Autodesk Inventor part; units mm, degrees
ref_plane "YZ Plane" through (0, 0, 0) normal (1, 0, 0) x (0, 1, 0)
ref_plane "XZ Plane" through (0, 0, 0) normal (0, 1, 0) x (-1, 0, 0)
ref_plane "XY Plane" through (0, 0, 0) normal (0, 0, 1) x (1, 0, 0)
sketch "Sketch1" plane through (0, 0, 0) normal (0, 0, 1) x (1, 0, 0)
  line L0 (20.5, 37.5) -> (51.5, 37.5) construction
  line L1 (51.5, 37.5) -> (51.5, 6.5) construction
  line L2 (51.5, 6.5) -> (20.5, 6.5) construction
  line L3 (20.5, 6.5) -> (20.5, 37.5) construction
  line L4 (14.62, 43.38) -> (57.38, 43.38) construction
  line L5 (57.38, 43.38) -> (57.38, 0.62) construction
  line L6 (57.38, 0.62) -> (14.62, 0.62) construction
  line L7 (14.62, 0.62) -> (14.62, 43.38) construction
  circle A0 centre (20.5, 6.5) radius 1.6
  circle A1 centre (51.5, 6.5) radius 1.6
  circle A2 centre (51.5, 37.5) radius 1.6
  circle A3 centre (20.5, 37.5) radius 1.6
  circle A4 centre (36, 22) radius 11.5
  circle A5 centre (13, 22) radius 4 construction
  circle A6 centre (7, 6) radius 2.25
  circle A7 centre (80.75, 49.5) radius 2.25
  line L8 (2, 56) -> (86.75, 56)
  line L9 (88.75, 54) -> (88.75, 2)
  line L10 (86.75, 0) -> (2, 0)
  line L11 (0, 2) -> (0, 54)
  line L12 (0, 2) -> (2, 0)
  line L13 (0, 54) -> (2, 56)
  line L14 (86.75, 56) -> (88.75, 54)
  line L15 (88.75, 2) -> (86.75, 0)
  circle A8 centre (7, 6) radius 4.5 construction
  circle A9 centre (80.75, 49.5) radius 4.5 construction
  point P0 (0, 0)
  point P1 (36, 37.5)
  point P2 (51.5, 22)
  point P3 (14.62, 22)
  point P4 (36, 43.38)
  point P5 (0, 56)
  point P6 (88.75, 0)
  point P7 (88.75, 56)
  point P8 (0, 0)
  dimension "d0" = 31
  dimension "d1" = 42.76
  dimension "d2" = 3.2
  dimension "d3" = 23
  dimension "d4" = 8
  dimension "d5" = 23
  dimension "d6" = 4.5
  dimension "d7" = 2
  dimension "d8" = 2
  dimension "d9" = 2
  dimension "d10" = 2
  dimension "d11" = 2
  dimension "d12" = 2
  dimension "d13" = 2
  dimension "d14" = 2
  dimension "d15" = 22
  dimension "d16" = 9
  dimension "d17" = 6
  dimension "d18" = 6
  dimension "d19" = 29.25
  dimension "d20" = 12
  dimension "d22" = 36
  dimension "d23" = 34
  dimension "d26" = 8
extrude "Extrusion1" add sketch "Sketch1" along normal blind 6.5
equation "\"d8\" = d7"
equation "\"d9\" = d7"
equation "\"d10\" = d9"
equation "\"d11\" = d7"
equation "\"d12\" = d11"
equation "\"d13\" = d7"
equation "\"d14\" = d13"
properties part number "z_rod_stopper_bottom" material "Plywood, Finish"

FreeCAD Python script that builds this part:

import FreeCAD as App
import Part
import Sketcher

V = App.Vector


def add_polygon(sketch, points):
    """Adds a closed chain of lines whose ends are joined by coincident constraints."""
    first, n = sketch.GeometryCount, len(points)
    for a, b in zip(points, points[1:] + points[:1]):
        sketch.addGeometry(Part.LineSegment(App.Vector(*a, 0), App.Vector(*b, 0)), False)
    for i in range(n):
        sketch.addConstraint(Sketcher.Constraint("Coincident", first + i, 2, first + (i + 1) % n, 1))

doc = App.newDocument("Part")
params = doc.addObject("Spreadsheet::Sheet", "Params")
for row, (alias, value) in enumerate([
    ("sketch1_diameter", "23 mm"),
    ("sketch1_diameter2", "4.5 mm"),
    ("sketch1_diameter3", "3.2 mm"),
    ("sketch1_width", "84.75 mm"),
    ("pad1_length", "6.5 mm"),
], start=1):
    params.set(f"A{row}", alias)
    params.set(f"B{row}", "=" + value)
    params.setAlias(f"B{row}", alias)

body = doc.addObject("PartDesign::Body", "Body")

# Sketch on XY plane
sketch1 = body.newObject("Sketcher::SketchObject", "Sketch")
sketch1.AttachmentSupport = (doc.getObject("XY_Plane"), [""])
sketch1.MapMode = "FlatFace"
add_polygon(sketch1, [(86.75, 56), (2, 56), (0, 54), (0, 2), (2, 0), (86.75, 0), (88.75, 2), (88.75, 54)])  # lines 0-7
sketch1.addGeometry(Part.Circle(V(7, 6, 0), V(0, 0, 1), 2.25), False)  # 8
sketch1.addGeometry(Part.Circle(V(20.5, 6.5, 0), V(0, 0, 1), 1.6), False)  # 9
sketch1.addGeometry(Part.Circle(V(36, 22, 0), V(0, 0, 1), 11.5), False)  # 10
sketch1.addGeometry(Part.Circle(V(51.5, 6.5, 0), V(0, 0, 1), 1.6), False)  # 11
sketch1.addGeometry(Part.Circle(V(20.5, 37.5, 0), V(0, 0, 1), 1.6), False)  # 12
sketch1.addGeometry(Part.Circle(V(51.5, 37.5, 0), V(0, 0, 1), 1.6), False)  # 13
sketch1.addGeometry(Part.Circle(V(80.75, 49.5, 0), V(0, 0, 1), 2.25), False)  # 14
sketch1.addConstraint([
    Sketcher.Constraint("Horizontal", 0),
    Sketcher.Constraint("Vertical", 2),
    Sketcher.Constraint("Horizontal", 4),
    Sketcher.Constraint("Vertical", 6),
    Sketcher.Constraint("Equal", 9, 11),
    Sketcher.Constraint("Equal", 11, 12),
    Sketcher.Constraint("Equal", 12, 13),
    Sketcher.Constraint("Equal", 8, 14),
    Sketcher.Constraint("PointOnObject", 1, 2, -2),
    Sketcher.Constraint("PointOnObject", 3, 2, -1),
    Sketcher.Constraint("Perpendicular", 1, 3),
    Sketcher.Constraint("Perpendicular", 3, 5),
    Sketcher.Constraint("Perpendicular", 5, 7),
    Sketcher.Constraint("Horizontal", 9, 3, 11, 3),
    Sketcher.Constraint("Horizontal", 12, 3, 13, 3),
    Sketcher.Constraint("Horizontal", 2, 2, 5, 2),
    Sketcher.Constraint("Horizontal", 1, 2, 6, 2),
    Sketcher.Constraint("Vertical", 9, 3, 12, 3),
    Sketcher.Constraint("Vertical", 11, 3, 13, 3),
    Sketcher.Constraint("Vertical", 0, 2, 3, 2),
    Sketcher.Constraint("Vertical", 4, 2, 7, 2),
    Sketcher.Constraint("Diameter", 10, 23.0),
    Sketcher.Constraint("Diameter", 8, 4.5),
    Sketcher.Constraint("Diameter", 9, 3.2),
    Sketcher.Constraint("DistanceY", -1, 1, 8, 3, 6.0),
    Sketcher.Constraint("DistanceX", -1, 1, 10, 3, 36.0),
    Sketcher.Constraint("DistanceY", -1, 1, 10, 3, 22.0),
    Sketcher.Constraint("DistanceX", -1, 1, 0, 2, 2.0),
    Sketcher.Constraint("DistanceX", 9, 3, 11, 3, 31.0),
    Sketcher.Constraint("DistanceY", 9, 3, 12, 3, 31.0),
    Sketcher.Constraint("DistanceY", 13, 3, 14, 3, 12.0),
    Sketcher.Constraint("DistanceY", 10, 3, 0, 2, 34.0),
    Sketcher.Constraint("DistanceX", 14, 3, 4, 2, 6.0),
    Sketcher.Constraint("DistanceY", 2, 2, 9, 3, 4.5),
    Sketcher.Constraint("DistanceX", 13, 3, 14, 3, 29.25),
    Sketcher.Constraint("DistanceX", -1, 1, 8, 3, 7.0),
    Sketcher.Constraint("DistanceX", 0, 2, 0, 1, 84.75),
])
sketch1.setExpression("Constraints[29]", "Params.sketch1_diameter")
sketch1.setExpression("Constraints[30]", "Params.sketch1_diameter2")
sketch1.setExpression("Constraints[31]", "Params.sketch1_diameter3")
sketch1.setExpression("Constraints[44]", "Params.sketch1_width")
pad1 = body.newObject("PartDesign::Pad", "Pad")
pad1.Profile = sketch1
pad1.setExpression("Length", "Params.pad1_length")

doc.recompute()
